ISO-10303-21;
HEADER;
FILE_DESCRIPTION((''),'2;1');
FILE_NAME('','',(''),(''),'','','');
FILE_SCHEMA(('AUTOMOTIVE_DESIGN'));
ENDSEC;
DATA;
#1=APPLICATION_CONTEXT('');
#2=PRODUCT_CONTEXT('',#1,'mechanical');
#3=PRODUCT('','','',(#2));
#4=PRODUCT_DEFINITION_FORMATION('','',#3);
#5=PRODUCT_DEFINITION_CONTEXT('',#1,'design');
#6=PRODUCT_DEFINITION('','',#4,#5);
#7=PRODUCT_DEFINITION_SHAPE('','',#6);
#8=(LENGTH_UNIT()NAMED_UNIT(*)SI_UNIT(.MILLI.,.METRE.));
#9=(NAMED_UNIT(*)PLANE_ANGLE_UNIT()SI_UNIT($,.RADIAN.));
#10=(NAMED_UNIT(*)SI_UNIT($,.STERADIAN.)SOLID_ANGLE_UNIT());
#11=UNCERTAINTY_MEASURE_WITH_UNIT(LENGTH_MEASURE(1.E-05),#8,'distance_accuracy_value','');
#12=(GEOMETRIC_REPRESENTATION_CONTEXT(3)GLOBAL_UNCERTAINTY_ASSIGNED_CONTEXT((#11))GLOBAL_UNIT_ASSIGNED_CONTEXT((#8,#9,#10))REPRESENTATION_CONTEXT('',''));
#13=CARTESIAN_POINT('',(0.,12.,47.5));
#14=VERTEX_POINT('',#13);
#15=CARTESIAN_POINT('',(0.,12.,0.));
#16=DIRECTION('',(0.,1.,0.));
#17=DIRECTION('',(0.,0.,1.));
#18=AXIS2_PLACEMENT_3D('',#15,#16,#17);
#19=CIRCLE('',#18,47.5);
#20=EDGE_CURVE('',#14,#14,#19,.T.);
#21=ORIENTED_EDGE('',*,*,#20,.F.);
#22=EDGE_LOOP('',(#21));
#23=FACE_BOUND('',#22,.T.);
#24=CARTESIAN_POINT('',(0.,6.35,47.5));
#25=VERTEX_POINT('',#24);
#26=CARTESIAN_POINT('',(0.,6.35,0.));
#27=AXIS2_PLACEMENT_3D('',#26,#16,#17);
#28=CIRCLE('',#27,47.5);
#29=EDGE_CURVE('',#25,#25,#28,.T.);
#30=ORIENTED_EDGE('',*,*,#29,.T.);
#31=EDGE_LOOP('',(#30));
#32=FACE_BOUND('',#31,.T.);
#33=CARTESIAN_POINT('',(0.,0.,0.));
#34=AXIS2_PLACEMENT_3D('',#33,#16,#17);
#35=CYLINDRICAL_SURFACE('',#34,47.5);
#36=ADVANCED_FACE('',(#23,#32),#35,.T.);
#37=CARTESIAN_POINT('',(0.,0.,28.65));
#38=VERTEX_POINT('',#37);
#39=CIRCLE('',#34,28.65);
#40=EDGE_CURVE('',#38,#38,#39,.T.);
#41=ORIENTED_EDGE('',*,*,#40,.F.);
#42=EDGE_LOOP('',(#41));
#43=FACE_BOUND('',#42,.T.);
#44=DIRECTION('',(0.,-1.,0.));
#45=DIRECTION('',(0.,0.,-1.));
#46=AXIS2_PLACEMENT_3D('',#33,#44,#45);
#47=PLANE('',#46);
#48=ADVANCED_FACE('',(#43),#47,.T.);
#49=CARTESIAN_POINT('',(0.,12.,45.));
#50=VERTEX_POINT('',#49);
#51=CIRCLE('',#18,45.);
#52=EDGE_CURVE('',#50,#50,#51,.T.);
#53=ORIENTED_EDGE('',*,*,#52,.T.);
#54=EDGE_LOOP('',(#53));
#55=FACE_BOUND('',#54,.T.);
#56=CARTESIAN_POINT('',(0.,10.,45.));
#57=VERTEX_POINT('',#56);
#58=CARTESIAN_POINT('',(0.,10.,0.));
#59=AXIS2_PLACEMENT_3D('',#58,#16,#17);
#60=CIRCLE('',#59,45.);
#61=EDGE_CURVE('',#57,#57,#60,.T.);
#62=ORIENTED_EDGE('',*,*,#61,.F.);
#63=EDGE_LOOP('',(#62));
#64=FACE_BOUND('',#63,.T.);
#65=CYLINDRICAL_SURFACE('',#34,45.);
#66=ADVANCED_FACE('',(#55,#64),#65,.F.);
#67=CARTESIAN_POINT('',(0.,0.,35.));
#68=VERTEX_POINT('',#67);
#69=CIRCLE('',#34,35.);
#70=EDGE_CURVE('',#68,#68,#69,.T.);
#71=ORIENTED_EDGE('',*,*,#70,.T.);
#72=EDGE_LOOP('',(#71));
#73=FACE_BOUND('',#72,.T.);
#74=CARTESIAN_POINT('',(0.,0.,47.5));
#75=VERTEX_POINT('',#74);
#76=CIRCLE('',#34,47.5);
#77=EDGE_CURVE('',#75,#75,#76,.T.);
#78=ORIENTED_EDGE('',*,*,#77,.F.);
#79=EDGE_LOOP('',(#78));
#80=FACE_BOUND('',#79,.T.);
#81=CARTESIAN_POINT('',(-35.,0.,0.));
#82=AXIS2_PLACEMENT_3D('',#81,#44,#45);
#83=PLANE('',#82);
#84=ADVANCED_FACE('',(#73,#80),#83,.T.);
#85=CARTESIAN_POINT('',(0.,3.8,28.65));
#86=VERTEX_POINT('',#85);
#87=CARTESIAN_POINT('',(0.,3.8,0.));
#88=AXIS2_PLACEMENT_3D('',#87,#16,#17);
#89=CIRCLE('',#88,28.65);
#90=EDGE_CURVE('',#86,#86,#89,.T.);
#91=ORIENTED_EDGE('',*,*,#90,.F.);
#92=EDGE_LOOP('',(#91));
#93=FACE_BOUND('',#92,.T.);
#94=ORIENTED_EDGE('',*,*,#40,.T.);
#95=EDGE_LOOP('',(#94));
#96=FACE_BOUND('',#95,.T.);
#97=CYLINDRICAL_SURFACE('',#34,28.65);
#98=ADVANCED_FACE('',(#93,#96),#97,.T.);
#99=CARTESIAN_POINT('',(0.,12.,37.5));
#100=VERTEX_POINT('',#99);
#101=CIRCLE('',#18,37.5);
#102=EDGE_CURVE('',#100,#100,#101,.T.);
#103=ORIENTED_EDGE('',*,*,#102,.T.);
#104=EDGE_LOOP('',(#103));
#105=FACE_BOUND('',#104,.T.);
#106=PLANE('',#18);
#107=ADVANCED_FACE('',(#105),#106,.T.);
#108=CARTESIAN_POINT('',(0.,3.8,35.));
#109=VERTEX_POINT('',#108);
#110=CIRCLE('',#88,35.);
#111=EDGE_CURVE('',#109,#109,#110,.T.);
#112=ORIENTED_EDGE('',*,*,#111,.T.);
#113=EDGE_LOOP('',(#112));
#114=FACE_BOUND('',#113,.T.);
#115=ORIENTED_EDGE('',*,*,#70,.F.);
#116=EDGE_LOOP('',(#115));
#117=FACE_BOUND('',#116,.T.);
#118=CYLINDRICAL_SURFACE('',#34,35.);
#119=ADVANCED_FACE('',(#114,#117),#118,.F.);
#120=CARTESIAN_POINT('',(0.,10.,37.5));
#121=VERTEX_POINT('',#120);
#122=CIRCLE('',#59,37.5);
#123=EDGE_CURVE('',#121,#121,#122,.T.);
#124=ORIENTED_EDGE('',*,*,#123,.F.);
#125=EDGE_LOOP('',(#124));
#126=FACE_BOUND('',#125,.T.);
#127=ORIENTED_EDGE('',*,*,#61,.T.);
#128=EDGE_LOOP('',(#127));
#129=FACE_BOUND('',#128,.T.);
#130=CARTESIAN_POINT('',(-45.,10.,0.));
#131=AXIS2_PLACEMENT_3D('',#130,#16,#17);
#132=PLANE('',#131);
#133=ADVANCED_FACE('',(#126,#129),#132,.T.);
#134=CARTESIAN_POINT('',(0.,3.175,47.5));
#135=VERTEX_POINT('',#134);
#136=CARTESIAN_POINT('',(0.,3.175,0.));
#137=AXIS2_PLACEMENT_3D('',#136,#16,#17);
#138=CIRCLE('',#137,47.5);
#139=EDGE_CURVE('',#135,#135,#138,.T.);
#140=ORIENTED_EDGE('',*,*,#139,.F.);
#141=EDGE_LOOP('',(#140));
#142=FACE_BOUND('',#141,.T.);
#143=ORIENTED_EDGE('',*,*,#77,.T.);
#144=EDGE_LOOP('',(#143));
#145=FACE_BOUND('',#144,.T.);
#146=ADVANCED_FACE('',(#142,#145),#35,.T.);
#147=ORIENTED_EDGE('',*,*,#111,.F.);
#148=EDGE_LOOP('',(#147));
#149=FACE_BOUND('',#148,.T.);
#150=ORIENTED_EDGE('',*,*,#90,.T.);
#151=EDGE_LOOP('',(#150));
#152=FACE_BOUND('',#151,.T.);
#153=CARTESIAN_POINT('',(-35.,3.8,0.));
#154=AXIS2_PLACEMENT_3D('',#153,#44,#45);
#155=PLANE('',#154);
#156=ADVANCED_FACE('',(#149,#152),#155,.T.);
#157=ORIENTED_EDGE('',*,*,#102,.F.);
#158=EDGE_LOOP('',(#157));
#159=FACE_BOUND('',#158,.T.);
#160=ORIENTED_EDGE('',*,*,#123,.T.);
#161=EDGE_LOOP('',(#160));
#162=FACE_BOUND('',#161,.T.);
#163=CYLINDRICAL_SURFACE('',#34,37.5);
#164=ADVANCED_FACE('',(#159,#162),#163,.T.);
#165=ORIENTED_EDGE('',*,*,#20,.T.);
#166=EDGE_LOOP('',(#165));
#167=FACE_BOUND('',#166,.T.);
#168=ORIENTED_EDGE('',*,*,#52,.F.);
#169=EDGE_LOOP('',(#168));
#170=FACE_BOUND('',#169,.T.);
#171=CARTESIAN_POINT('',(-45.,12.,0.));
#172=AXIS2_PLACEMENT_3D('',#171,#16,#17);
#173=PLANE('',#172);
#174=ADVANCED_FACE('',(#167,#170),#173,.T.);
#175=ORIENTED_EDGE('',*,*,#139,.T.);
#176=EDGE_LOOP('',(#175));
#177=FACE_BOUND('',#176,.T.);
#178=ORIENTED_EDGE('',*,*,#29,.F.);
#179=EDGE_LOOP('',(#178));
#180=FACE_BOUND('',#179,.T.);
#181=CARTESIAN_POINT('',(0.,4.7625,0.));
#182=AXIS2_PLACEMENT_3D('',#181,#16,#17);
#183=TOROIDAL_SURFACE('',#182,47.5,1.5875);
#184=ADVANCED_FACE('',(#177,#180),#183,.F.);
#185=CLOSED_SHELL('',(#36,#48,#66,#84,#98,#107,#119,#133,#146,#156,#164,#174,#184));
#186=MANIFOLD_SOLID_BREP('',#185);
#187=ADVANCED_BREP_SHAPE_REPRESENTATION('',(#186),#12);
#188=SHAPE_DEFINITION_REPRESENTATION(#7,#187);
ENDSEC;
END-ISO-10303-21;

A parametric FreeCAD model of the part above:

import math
import FreeCAD as App
import Part
import Sketcher
from FreeCAD import Vector
Q = App.Units.Quantity

doc = App.newDocument("Part")
body = doc.addObject("PartDesign::Body", "Body")

sketch1 = body.newObject("Sketcher::SketchObject", "Sketch")
sketch1.AttachmentSupport = (doc.getObject("XY_Plane"), [""])
sketch1.MapMode = "FlatFace"
sketch1.addGeometry(Part.LineSegment(Vector(-47.5, 0, 0), Vector(-35, 0, 0)), False)
sketch1.addGeometry(Part.LineSegment(Vector(-35, 0, 0), Vector(-35, 3.8, 0)), False)
sketch1.addGeometry(Part.LineSegment(Vector(-35, 3.8, 0), Vector(-28.65, 3.8, 0)), False)
sketch1.addGeometry(Part.LineSegment(Vector(-28.65, 3.8, 0), Vector(-28.65, 0, 0)), False)
sketch1.addGeometry(Part.LineSegment(Vector(-28.65, 0, 0), Vector(0, 0, 0)), False)
sketch1.addGeometry(Part.LineSegment(Vector(0, 0, 0), Vector(0, 12, 0)), False)
sketch1.addGeometry(Part.LineSegment(Vector(0, 12, 0), Vector(-37.5, 12, 0)), False)
sketch1.addGeometry(Part.LineSegment(Vector(-37.5, 12, 0), Vector(-37.5, 10, 0)), False)
sketch1.addGeometry(Part.LineSegment(Vector(-37.5, 10, 0), Vector(-45, 10, 0)), False)
sketch1.addGeometry(Part.LineSegment(Vector(-45, 10, 0), Vector(-45, 12, 0)), False)
sketch1.addGeometry(Part.LineSegment(Vector(-45, 12, 0), Vector(-47.5, 12, 0)), False)
sketch1.addGeometry(Part.LineSegment(Vector(-47.5, 12, 0), Vector(-47.5, 6.35, 0)), False)
sketch1.addGeometry(Part.ArcOfCircle(Part.Circle(Vector(-47.5, 4.7625, 0), Vector(0, 0, 1), 1.5875), math.radians(-90), math.radians(90)), False)
sketch1.addGeometry(Part.LineSegment(Vector(-47.5, 3.175, 0), Vector(-47.5, 0, 0)), False)
sketch1.addConstraint(Sketcher.Constraint("Coincident", 0, 2, 1, 1))
sketch1.addConstraint(Sketcher.Constraint("Coincident", 1, 2, 2, 1))
sketch1.addConstraint(Sketcher.Constraint("Coincident", 2, 2, 3, 1))
sketch1.addConstraint(Sketcher.Constraint("Coincident", 3, 2, 4, 1))
sketch1.addConstraint(Sketcher.Constraint("Coincident", 4, 2, 5, 1))
sketch1.addConstraint(Sketcher.Constraint("Coincident", 5, 2, 6, 1))
sketch1.addConstraint(Sketcher.Constraint("Coincident", 6, 2, 7, 1))
sketch1.addConstraint(Sketcher.Constraint("Coincident", 7, 2, 8, 1))
sketch1.addConstraint(Sketcher.Constraint("Coincident", 8, 2, 9, 1))
sketch1.addConstraint(Sketcher.Constraint("Coincident", 9, 2, 10, 1))
sketch1.addConstraint(Sketcher.Constraint("Coincident", 10, 2, 11, 1))
sketch1.addConstraint(Sketcher.Constraint("Coincident", 11, 2, 12, 2))
sketch1.addConstraint(Sketcher.Constraint("Coincident", 12, 1, 13, 1))
sketch1.addConstraint(Sketcher.Constraint("Coincident", 13, 2, 0, 1))
sketch1.addConstraint(Sketcher.Constraint("Horizontal", 0))
sketch1.addConstraint(Sketcher.Constraint("Vertical", 1))
sketch1.addConstraint(Sketcher.Constraint("Horizontal", 2))
sketch1.addConstraint(Sketcher.Constraint("Vertical", 3))
sketch1.addConstraint(Sketcher.Constraint("Horizontal", 4))
sketch1.addConstraint(Sketcher.Constraint("Vertical", 5))
sketch1.addConstraint(Sketcher.Constraint("Horizontal", 6))
sketch1.addConstraint(Sketcher.Constraint("Vertical", 7))
sketch1.addConstraint(Sketcher.Constraint("Horizontal", 8))
sketch1.addConstraint(Sketcher.Constraint("Vertical", 9))
sketch1.addConstraint(Sketcher.Constraint("Horizontal", 10))
sketch1.addConstraint(Sketcher.Constraint("Vertical", 11))
sketch1.addConstraint(Sketcher.Constraint("Vertical", 13))
sketch1.addConstraint(Sketcher.Constraint("Coincident", 4, 2, -1, 1))
sketch1.addConstraint(Sketcher.Constraint("PointOnObject", 0, 2, -1))
sketch1.addConstraint(Sketcher.Constraint("Horizontal", 6, 2, 9, 2))
sketch1.addConstraint(Sketcher.Constraint("Vertical", 12, 3, 10, 2))
sketch1.addConstraint(Sketcher.Constraint("Vertical", 11, 2, 12, 1))
sketch1.addConstraint(Sketcher.Constraint("DistanceY", 5, 1, 5, 2, Q("12 mm")))
sketch1.addConstraint(Sketcher.Constraint("DistanceY", 7, 2, 7, 1, Q("2 mm")))
sketch1.addConstraint(Sketcher.Constraint("DistanceX", 0, 1, 0, 2, Q("12.5 mm")))
sketch1.addConstraint(Sketcher.Constraint("DistanceX", 6, 2, 6, 1, Q("37.5 mm")))
sketch1.addConstraint(Sketcher.Constraint("DistanceX", 8, 2, 8, 1, Q("7.5 mm")))
sketch1.addConstraint(Sketcher.Constraint("DistanceX", 10, 2, 10, 1, Q("2.5 mm")))
sketch1.addConstraint(Sketcher.Constraint("DistanceY", 1, 1, 1, 2, Q("3.8 mm")))
sketch1.addConstraint(Sketcher.Constraint("DistanceX", 2, 1, 2, 2, Q("6.35 mm")))
sketch1.addConstraint(Sketcher.Constraint("DistanceY", 11, 2, 11, 1, Q("5.65 mm")))
sketch1.addConstraint(Sketcher.Constraint("Radius", 12, Q("1.5875 mm")))
revolution = body.newObject("PartDesign::Revolution", "Revolution")
revolution.Profile = sketch1
revolution.ReferenceAxis = (sketch1, ["V_Axis"])
revolution.Angle = 360

doc.recompute()
